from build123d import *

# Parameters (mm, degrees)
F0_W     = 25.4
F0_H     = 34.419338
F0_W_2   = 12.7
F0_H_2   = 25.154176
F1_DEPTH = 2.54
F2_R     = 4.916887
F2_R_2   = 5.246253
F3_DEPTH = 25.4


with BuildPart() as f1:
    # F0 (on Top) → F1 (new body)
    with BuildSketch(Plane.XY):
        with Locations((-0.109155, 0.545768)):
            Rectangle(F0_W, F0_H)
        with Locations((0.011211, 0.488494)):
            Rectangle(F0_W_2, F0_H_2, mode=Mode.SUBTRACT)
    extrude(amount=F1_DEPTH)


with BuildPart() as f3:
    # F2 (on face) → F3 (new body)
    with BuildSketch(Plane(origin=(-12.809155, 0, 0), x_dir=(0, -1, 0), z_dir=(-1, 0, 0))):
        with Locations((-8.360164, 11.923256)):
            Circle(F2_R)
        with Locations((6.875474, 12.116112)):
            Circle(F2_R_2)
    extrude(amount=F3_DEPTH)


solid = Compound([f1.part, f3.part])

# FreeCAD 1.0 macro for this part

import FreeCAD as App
import Part
import Sketcher

V = App.Vector
Q = App.Units.Quantity


def add_polygon(sketch, points):
    """Adds a closed chain of lines whose ends are joined by coincident constraints."""
    first, n = sketch.GeometryCount, len(points)
    for a, b in zip(points, points[1:] + points[:1]):
        sketch.addGeometry(Part.LineSegment(App.Vector(*a, 0), App.Vector(*b, 0)), False)
    for i in range(n):
        sketch.addConstraint(Sketcher.Constraint("Coincident", first + i, 2, first + (i + 1) % n, 1))

doc = App.newDocument("Part")
body = doc.addObject("PartDesign::Body", "Body")

sketch1 = body.newObject("Sketcher::SketchObject", "Sketch")
sketch1.AttachmentSupport = (doc.getObject("XY_Plane"), [""])
sketch1.MapMode = "FlatFace"
add_polygon(sketch1, [(-13, 18), (-13, -17), (13, -17), (13, 18)])
add_polygon(sketch1, [(6, -12), (-6, -12), (-6, 13), (6, 13)])
sketch1.addConstraint([
    Sketcher.Constraint("Vertical", 0),
    Sketcher.Constraint("Horizontal", 1),
    Sketcher.Constraint("Vertical", 2),
    Sketcher.Constraint("Horizontal", 3),
    Sketcher.Constraint("Horizontal", 4),
    Sketcher.Constraint("Vertical", 5),
    Sketcher.Constraint("Horizontal", 6),
    Sketcher.Constraint("Vertical", 7),
    Sketcher.Constraint("DistanceX", 1, 1, 1, 2, Q("1 in")),
    Sketcher.Constraint("DistanceX", 4, 2, 4, 1, Q("0.5 in")),
    Sketcher.Constraint("DistanceY", 0, 2, -1, 1, 16.663901),
    Sketcher.Constraint("DistanceY", 0, 2, 0, 1, 34.419338),
    Sketcher.Constraint("DistanceY", 5, 1, 5, 2, 25.154176),
    Sketcher.Constraint("DistanceX", 4, 2, -1, 1, 6.338789),
    Sketcher.Constraint("DistanceY", -1, 1, 5, 2, 13.065582),
    Sketcher.Constraint("DistanceX", 0, 2, -1, 1, 12.809155),
])
pad1 = body.newObject("PartDesign::Pad", "Pad")
pad1.Profile = sketch1
pad1.Length = Q("0.1 in")
body2 = doc.addObject("PartDesign::Body", "Body001")
body2.AllowCompound = True

sketch2 = body2.newObject("Sketcher::SketchObject", "Sketch001")
sketch2.AttachmentSupport = (doc.getObject("YZ_Plane001"), [""])
sketch2.MapMode = "FlatFace"
sketch2.AttachmentOffset = App.Placement(V(0, 0, -12.809155), App.Rotation())
sketch2.addGeometry([
    Part.Circle(V(8.4, 11.9, 0), V(0, 0, 1), 4.9),
    Part.Circle(V(-6.9, 12.1, 0), V(0, 0, 1), 5.2),
], False)
sketch2.addConstraint([
    Sketcher.Constraint("Diameter", 0, 9.833774),
    Sketcher.Constraint("Diameter", 1, 10.492506),
    Sketcher.Constraint("DistanceY", -1, 1, 1, 3, 12.116112),
    Sketcher.Constraint("DistanceX", -1, 1, 0, 3, 8.360164),
    Sketcher.Constraint("DistanceY", -1, 1, 0, 3, 11.923256),
    Sketcher.Constraint("DistanceX", 1, 3, -1, 1, 6.875474),
])
pad2 = body2.newObject("PartDesign::Pad", "Pad001")
pad2.Profile = sketch2
pad2.Length = Q("1 in")
pad2.Reversed = True

doc.recompute()
